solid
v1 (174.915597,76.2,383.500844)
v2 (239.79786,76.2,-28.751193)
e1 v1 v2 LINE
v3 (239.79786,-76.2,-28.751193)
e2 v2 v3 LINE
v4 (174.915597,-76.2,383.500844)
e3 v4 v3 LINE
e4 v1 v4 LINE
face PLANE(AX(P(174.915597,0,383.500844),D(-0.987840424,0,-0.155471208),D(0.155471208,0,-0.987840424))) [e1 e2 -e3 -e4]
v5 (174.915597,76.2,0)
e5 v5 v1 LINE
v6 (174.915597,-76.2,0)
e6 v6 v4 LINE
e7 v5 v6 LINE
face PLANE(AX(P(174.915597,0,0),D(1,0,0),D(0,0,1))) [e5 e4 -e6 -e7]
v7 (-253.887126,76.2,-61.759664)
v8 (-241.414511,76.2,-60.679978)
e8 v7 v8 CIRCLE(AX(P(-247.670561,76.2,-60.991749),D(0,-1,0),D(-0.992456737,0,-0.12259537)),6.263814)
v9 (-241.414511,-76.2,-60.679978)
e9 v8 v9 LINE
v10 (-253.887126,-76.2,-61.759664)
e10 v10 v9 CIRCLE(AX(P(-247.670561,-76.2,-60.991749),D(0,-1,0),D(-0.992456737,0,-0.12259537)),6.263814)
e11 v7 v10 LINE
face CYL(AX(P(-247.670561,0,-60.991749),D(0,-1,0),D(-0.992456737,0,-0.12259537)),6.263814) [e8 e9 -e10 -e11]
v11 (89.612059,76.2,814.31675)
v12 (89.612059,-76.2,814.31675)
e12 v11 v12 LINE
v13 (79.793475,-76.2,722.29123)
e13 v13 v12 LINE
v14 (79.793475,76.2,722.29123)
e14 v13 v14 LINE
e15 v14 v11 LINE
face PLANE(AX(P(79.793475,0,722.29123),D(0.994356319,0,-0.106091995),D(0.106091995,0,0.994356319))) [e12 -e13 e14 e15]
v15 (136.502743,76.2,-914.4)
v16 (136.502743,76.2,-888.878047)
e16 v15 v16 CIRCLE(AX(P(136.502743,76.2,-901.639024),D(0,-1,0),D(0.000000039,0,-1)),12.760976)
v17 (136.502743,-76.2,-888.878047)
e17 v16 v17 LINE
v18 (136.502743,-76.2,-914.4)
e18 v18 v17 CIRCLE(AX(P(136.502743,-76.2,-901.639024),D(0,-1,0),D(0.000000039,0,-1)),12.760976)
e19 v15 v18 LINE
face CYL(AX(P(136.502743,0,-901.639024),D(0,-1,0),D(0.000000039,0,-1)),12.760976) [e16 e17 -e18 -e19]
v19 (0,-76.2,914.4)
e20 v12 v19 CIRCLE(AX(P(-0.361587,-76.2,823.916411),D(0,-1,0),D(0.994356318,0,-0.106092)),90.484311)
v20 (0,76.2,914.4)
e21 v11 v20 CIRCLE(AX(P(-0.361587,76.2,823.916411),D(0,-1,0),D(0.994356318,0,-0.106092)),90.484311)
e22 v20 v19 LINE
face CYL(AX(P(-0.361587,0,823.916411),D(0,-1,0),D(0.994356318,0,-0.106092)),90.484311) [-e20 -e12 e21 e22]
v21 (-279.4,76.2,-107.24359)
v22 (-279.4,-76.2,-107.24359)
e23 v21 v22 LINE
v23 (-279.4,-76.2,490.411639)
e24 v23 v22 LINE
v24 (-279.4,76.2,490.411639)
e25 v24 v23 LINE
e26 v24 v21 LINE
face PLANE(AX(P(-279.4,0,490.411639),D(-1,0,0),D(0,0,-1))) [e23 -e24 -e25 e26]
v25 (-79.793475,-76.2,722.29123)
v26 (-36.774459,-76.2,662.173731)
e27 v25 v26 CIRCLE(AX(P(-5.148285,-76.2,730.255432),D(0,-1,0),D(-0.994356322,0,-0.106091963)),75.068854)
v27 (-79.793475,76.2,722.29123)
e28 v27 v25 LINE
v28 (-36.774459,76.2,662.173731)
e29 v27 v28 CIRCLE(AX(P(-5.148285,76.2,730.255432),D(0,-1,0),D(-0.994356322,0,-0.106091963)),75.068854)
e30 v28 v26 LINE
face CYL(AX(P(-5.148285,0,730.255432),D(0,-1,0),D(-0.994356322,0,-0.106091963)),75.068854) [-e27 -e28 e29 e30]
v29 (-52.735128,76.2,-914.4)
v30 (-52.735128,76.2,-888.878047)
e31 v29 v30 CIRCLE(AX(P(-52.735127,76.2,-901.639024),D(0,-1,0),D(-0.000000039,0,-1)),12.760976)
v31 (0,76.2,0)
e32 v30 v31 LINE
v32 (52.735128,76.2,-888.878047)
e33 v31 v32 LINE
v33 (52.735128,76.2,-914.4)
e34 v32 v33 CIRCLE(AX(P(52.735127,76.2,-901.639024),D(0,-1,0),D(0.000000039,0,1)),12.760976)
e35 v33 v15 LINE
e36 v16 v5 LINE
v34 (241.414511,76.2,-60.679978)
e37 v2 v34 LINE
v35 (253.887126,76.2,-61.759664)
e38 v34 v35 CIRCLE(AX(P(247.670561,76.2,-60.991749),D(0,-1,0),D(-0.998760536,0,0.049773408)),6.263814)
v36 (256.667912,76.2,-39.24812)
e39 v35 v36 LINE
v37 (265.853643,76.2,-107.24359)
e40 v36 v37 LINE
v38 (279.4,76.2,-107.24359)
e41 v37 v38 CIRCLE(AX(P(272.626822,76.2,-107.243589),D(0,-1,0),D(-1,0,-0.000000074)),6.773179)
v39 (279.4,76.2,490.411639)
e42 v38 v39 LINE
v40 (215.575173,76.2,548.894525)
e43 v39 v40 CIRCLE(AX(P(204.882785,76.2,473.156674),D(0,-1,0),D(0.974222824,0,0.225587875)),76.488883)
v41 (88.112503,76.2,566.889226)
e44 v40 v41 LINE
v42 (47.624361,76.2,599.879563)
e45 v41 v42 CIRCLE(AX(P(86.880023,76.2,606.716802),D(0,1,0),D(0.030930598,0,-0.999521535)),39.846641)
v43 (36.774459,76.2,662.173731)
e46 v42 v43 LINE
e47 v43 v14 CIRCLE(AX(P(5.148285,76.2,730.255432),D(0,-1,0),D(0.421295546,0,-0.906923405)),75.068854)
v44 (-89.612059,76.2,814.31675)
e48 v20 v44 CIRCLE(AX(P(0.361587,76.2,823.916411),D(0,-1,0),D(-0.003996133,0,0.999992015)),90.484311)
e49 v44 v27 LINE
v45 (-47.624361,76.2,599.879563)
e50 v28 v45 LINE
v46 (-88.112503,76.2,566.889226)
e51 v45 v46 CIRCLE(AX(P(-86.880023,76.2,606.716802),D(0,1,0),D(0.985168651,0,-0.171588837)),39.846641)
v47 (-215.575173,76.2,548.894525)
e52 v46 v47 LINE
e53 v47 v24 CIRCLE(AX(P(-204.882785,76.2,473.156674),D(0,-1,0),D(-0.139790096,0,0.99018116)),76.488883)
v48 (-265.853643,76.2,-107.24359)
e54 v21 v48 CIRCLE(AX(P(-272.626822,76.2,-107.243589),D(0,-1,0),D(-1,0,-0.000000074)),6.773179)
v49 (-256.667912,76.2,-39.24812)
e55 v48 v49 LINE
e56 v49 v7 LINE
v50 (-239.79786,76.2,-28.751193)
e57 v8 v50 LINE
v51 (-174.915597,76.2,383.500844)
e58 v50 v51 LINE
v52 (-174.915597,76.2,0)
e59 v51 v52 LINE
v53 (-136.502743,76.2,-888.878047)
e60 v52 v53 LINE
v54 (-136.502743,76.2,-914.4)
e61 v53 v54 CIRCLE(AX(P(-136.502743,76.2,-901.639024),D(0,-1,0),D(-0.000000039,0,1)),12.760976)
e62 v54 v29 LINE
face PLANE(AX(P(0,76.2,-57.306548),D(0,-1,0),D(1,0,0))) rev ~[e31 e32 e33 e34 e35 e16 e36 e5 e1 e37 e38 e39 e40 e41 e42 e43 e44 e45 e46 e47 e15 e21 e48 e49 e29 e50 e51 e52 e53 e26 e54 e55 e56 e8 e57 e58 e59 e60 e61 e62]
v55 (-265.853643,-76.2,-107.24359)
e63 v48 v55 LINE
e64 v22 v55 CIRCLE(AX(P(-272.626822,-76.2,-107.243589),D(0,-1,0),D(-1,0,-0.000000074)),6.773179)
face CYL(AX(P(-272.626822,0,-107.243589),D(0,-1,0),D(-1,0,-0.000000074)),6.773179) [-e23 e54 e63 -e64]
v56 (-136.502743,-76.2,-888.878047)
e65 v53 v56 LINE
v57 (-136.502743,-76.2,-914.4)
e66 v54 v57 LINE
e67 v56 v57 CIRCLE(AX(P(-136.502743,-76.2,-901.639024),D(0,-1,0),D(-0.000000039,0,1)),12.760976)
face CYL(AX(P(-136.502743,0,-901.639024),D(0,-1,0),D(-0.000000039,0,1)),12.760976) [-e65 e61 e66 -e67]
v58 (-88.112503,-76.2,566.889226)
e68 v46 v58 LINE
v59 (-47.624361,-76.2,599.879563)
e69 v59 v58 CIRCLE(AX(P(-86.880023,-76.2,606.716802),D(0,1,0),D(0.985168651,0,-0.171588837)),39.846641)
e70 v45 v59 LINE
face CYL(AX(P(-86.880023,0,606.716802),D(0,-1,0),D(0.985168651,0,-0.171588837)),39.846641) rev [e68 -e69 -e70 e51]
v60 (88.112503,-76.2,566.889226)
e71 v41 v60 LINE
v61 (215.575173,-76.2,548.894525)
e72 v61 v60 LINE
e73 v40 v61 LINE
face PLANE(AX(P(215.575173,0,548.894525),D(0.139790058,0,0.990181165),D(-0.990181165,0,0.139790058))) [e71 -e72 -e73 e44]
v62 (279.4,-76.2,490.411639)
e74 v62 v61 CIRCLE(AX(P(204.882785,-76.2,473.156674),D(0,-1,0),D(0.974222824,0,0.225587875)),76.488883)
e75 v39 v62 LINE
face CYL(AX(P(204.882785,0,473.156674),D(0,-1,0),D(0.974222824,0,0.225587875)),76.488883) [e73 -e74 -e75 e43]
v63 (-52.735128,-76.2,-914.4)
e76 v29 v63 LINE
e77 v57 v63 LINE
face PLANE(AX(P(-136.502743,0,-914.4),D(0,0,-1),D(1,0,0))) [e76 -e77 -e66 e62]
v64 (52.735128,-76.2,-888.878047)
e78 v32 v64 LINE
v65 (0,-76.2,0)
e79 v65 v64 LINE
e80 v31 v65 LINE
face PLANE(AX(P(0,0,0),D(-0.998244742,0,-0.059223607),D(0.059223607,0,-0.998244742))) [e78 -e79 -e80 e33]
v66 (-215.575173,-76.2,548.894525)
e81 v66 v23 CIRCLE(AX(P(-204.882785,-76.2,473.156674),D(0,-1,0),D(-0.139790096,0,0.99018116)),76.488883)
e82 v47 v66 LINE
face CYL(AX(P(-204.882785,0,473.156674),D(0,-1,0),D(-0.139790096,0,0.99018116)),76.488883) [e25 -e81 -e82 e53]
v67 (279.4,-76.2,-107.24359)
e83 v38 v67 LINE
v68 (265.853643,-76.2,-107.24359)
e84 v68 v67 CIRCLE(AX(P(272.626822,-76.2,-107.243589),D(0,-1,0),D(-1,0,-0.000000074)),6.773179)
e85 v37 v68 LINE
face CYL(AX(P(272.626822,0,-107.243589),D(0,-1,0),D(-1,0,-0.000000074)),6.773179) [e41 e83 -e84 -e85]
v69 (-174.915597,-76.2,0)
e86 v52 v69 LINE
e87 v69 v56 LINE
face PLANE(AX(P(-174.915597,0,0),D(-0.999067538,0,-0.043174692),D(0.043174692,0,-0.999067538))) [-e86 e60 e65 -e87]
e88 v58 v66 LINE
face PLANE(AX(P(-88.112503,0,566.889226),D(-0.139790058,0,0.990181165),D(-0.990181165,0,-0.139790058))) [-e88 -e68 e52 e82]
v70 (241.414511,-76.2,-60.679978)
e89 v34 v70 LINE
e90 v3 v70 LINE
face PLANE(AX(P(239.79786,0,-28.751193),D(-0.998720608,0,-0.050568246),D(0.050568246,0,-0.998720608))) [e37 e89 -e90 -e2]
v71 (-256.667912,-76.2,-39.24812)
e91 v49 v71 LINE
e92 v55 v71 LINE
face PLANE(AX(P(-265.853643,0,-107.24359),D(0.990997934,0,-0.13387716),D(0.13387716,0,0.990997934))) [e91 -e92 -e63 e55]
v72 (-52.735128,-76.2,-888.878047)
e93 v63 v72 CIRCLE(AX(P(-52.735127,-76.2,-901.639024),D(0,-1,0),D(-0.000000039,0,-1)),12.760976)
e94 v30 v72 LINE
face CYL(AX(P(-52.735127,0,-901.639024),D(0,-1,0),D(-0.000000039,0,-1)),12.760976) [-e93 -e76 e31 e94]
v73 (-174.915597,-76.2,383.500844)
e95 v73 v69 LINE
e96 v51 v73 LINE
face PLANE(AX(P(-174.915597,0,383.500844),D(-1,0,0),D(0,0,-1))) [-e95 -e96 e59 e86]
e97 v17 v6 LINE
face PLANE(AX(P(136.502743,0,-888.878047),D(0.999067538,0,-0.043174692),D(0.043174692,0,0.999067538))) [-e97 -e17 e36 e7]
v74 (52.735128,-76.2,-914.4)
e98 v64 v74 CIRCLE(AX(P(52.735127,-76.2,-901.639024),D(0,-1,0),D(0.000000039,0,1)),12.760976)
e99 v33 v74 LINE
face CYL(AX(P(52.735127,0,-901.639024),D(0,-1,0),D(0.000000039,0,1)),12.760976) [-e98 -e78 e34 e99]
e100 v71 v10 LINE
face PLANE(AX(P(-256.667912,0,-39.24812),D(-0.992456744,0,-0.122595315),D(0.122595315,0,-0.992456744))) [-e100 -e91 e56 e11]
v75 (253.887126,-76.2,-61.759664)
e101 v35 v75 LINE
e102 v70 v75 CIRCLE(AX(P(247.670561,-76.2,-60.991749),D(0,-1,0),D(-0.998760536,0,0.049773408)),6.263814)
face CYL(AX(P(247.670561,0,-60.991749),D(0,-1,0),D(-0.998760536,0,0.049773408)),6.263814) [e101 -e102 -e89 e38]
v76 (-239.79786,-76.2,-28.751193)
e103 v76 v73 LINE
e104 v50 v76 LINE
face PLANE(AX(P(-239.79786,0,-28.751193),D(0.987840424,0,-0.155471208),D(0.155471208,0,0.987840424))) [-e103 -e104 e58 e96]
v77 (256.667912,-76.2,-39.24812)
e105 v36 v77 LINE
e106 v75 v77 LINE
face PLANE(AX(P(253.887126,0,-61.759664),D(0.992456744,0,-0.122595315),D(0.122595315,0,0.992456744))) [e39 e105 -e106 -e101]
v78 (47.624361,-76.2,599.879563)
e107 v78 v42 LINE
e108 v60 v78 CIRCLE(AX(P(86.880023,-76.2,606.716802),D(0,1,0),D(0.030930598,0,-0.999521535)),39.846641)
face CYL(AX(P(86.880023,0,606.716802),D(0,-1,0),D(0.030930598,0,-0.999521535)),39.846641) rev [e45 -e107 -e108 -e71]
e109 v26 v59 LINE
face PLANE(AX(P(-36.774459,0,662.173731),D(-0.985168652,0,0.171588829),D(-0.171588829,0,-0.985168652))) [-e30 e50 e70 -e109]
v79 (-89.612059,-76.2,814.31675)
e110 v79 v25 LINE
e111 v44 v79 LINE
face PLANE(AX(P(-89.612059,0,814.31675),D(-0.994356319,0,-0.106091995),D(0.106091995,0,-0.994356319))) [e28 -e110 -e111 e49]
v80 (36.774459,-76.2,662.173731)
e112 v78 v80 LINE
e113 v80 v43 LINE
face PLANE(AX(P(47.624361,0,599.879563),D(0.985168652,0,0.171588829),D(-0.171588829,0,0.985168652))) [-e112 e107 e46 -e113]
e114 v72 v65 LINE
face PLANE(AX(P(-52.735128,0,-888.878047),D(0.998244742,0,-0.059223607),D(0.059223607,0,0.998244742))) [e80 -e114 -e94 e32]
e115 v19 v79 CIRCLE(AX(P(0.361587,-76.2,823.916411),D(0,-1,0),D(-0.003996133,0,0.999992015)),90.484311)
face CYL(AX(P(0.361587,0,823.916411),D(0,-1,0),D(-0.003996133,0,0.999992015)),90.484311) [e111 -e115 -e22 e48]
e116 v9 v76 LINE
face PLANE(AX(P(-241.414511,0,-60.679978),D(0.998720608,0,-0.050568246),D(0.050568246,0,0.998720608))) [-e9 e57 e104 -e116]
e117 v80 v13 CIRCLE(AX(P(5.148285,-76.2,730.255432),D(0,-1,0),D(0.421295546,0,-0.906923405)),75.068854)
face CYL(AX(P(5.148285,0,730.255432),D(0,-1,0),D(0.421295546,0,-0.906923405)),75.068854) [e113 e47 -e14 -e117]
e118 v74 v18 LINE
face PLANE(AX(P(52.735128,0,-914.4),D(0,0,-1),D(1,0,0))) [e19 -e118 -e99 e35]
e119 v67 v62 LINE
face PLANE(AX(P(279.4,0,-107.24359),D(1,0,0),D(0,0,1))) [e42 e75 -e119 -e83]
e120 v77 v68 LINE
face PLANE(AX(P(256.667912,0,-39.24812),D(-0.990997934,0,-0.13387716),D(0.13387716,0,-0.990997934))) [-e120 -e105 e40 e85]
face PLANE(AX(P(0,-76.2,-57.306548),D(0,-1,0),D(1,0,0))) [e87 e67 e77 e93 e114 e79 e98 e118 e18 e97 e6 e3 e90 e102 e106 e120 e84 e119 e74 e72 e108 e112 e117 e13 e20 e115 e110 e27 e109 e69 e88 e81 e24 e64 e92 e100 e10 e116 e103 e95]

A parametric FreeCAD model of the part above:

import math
import FreeCAD as App
import Part
import Sketcher
from FreeCAD import Vector
Q = App.Units.Quantity

doc = App.newDocument("Part")
body = doc.addObject("PartDesign::Body", "Body")

# Sketch on XZ plane
sketch1 = body.newObject("Sketcher::SketchObject", "Sketch")
sketch1.AttachmentSupport = (doc.getObject("XZ_Plane"), [""])
sketch1.MapMode = "FlatFace"
sketch1.addGeometry([
    Part.LineSegment(Vector(79.793475, 722.29123, 0), Vector(89.612059, 814.31675, 0)),  # 0
    Part.ArcOfCircle(Part.Circle(Vector(-0.361587, 823.916411, 0), Vector(0, 0, 1), 90.484311), math.radians(-6.090085), math.radians(89.771038)),  # 1
    Part.ArcOfCircle(Part.Circle(Vector(0.361587, 823.916411, 0), Vector(0, 0, 1), 90.484311), math.radians(90.228962), math.radians(186.090085)),  # 2
    Part.LineSegment(Vector(-89.612059, 814.31675, 0), Vector(-79.793475, 722.29123, 0)),  # 3
    Part.ArcOfCircle(Part.Circle(Vector(-5.148285, 730.255432, 0), Vector(0, 0, 1), 75.068854), math.radians(-173.909917), math.radians(-114.916408)),  # 4
    Part.LineSegment(Vector(-36.774459, 662.173731, 0), Vector(-47.624361, 599.879563, 0)),  # 5
    Part.ArcOfCircle(Part.Circle(Vector(-86.880023, 606.716802, 0), Vector(0, 0, 1), 39.846641), math.radians(-91.772475), math.radians(-9.88021)),  # 6
    Part.LineSegment(Vector(-88.112503, 566.889226, 0), Vector(-215.575173, 548.894525, 0)),  # 7
    Part.ArcOfCircle(Part.Circle(Vector(-204.882785, 473.156675, 0), Vector(0, 0, 1), 76.488883), math.radians(98.0357), math.radians(166.96255)),  # 8
    Part.LineSegment(Vector(-279.4, 490.411639, 0), Vector(-279.4, -107.24359, 0)),  # 9
    Part.ArcOfCircle(Part.Circle(Vector(-272.626822, -107.243589, 0), Vector(0, 0, 1), 6.773179), math.radians(-179.999996), math.radians(-0.000004)),  # 10
    Part.LineSegment(Vector(-265.853643, -107.24359, 0), Vector(-256.667912, -39.24812, 0)),  # 11
    Part.LineSegment(Vector(-256.667912, -39.24812, 0), Vector(-253.887126, -61.759664, 0)),  # 12
    Part.ArcOfCircle(Part.Circle(Vector(-247.670561, -60.991749, 0), Vector(0, 0, 1), 6.263814), math.radians(-172.958087), math.radians(2.852985)),  # 13
    Part.LineSegment(Vector(-241.414511, -60.679978, 0), Vector(-239.79786, -28.751193, 0)),  # 14
    Part.LineSegment(Vector(-239.79786, -28.751193, 0), Vector(-174.915597, 383.500844, 0)),  # 15
    Part.LineSegment(Vector(-174.915597, 383.500844, 0), Vector(-174.915597, 0, 0)),  # 16
    Part.LineSegment(Vector(-174.915597, 0, 0), Vector(-136.502743, -888.878047, 0)),  # 17
    Part.ArcOfCircle(Part.Circle(Vector(-136.502743, -901.639024, 0), Vector(0, 0, 1), 12.760976), math.radians(90.000002), math.radians(269.999998)),  # 18
    Part.LineSegment(Vector(-136.502743, -914.4, 0), Vector(-52.735128, -914.4, 0)),  # 19
    Part.ArcOfCircle(Part.Circle(Vector(-52.735127, -901.639024, 0), Vector(0, 0, 1), 12.760976), math.radians(-90.000002), math.radians(90.000002)),  # 20
    Part.LineSegment(Vector(-52.735128, -888.878047, 0), Vector(0, 0, 0)),  # 21
    Part.LineSegment(Vector(0, 0, 0), Vector(52.735128, -888.878047, 0)),  # 22
    Part.ArcOfCircle(Part.Circle(Vector(52.735127, -901.639024, 0), Vector(0, 0, 1), 12.760976), math.radians(89.999998), math.radians(270.000002)),  # 23
    Part.LineSegment(Vector(52.735128, -914.4, 0), Vector(136.502743, -914.4, 0)),  # 24
    Part.ArcOfCircle(Part.Circle(Vector(136.502743, -901.639024, 0), Vector(0, 0, 1), 12.760976), math.radians(-89.999998), math.radians(89.999998)),  # 25
    Part.LineSegment(Vector(136.502743, -888.878047, 0), Vector(174.915597, 0, 0)),  # 26
    Part.LineSegment(Vector(174.915597, 0, 0), Vector(174.915597, 383.500844, 0)),  # 27
    Part.LineSegment(Vector(174.915597, 383.500844, 0), Vector(239.79786, -28.751193, 0)),  # 28
    Part.LineSegment(Vector(239.79786, -28.751193, 0), Vector(241.414511, -60.679978, 0)),  # 29
    Part.ArcOfCircle(Part.Circle(Vector(247.670561, -60.991749, 0), Vector(0, 0, 1), 6.263814), math.radians(177.147015), math.radians(352.958087)),  # 30
    Part.LineSegment(Vector(253.887126, -61.759664, 0), Vector(256.667912, -39.24812, 0)),  # 31
    Part.LineSegment(Vector(256.667912, -39.24812, 0), Vector(265.853643, -107.24359, 0)),  # 32
    Part.ArcOfCircle(Part.Circle(Vector(272.626822, -107.243589, 0), Vector(0, 0, 1), 6.773179), math.radians(-179.999996), math.radians(-0.000004)),  # 33
    Part.LineSegment(Vector(279.4, -107.24359, 0), Vector(279.4, 490.411639, 0)),  # 34
    Part.ArcOfCircle(Part.Circle(Vector(204.882785, 473.156675, 0), Vector(0, 0, 1), 76.488883), math.radians(13.03745), math.radians(81.9643)),  # 35
    Part.LineSegment(Vector(215.575173, 548.894525, 0), Vector(88.112503, 566.889226, 0)),  # 36
    Part.ArcOfCircle(Part.Circle(Vector(86.880023, 606.716802, 0), Vector(0, 0, 1), 39.846641), math.radians(-170.11979), math.radians(-88.227525)),  # 37
    Part.LineSegment(Vector(47.624361, 599.879563, 0), Vector(36.774459, 662.173731, 0)),  # 38
    Part.ArcOfCircle(Part.Circle(Vector(5.148285, 730.255432, 0), Vector(0, 0, 1), 75.068854), math.radians(-65.083592), math.radians(-6.090083)),  # 39
], False)
sketch1.addConstraint([
    Sketcher.Constraint("Tangent", 0, 2, 1, 1),
    Sketcher.Constraint("Coincident", 1, 2, 2, 1),
    Sketcher.Constraint("Tangent", 2, 2, 3, 1),
    Sketcher.Constraint("Tangent", 3, 2, 4, 1),
    Sketcher.Constraint("Coincident", 4, 2, 5, 1),
    Sketcher.Constraint("Tangent", 5, 2, 6, 2),
    Sketcher.Constraint("Coincident", 6, 1, 7, 1),
    Sketcher.Constraint("Tangent", 7, 2, 8, 1),
    Sketcher.Constraint("Coincident", 8, 2, 9, 1),
    Sketcher.Constraint("Tangent", 9, 2, 10, 1),
    Sketcher.Constraint("Coincident", 10, 2, 11, 1),
    Sketcher.Constraint("Coincident", 11, 2, 12, 1),
    Sketcher.Constraint("Tangent", 12, 2, 13, 1),
    Sketcher.Constraint("Coincident", 13, 2, 14, 1),
    Sketcher.Constraint("Coincident", 14, 2, 15, 1),
    Sketcher.Constraint("Coincident", 15, 2, 16, 1),
    Sketcher.Constraint("Coincident", 16, 2, 17, 1),
    Sketcher.Constraint("Coincident", 17, 2, 18, 1),
    Sketcher.Constraint("Tangent", 18, 2, 19, 1),
    Sketcher.Constraint("Tangent", 19, 2, 20, 1),
    Sketcher.Constraint("Coincident", 20, 2, 21, 1),
    Sketcher.Constraint("Coincident", 21, 2, 22, 1),
    Sketcher.Constraint("Coincident", 22, 2, 23, 1),
    Sketcher.Constraint("Tangent", 23, 2, 24, 1),
    Sketcher.Constraint("Tangent", 24, 2, 25, 1),
    Sketcher.Constraint("Coincident", 25, 2, 26, 1),
    Sketcher.Constraint("Coincident", 26, 2, 27, 1),
    Sketcher.Constraint("Coincident", 27, 2, 28, 1),
    Sketcher.Constraint("Coincident", 28, 2, 29, 1),
    Sketcher.Constraint("Coincident", 29, 2, 30, 1),
    Sketcher.Constraint("Tangent", 30, 2, 31, 1),
    Sketcher.Constraint("Coincident", 31, 2, 32, 1),
    Sketcher.Constraint("Coincident", 32, 2, 33, 1),
    Sketcher.Constraint("Tangent", 33, 2, 34, 1),
    Sketcher.Constraint("Coincident", 34, 2, 35, 1),
    Sketcher.Constraint("Tangent", 35, 2, 36, 1),
    Sketcher.Constraint("Coincident", 36, 2, 37, 2),
    Sketcher.Constraint("Tangent", 37, 1, 38, 1),
    Sketcher.Constraint("Coincident", 38, 2, 39, 1),
    Sketcher.Constraint("Tangent", 39, 2, 0, 1),
    Sketcher.Constraint("Vertical", 9),
    Sketcher.Constraint("Vertical", 16),
    Sketcher.Constraint("Horizontal", 19),
    Sketcher.Constraint("Horizontal", 24),
    Sketcher.Constraint("Vertical", 27),
    Sketcher.Constraint("Vertical", 34),
    Sketcher.Constraint("Coincident", 21, 2, -1, 1),
    Sketcher.Constraint("Equal", 1, 2),
    Sketcher.Constraint("Equal", 18, 20),
    Sketcher.Constraint("Equal", 20, 23),
    Sketcher.Constraint("Equal", 23, 25),
    Sketcher.Constraint("Equal", 13, 30),
    Sketcher.Constraint("Equal", 10, 33),
    Sketcher.Constraint("Equal", 8, 35),
    Sketcher.Constraint("Equal", 6, 37),
    Sketcher.Constraint("Equal", 4, 39),
    Sketcher.Constraint("Symmetric", 16, 2, 26, 2, -1, 1),
    Sketcher.Constraint("Symmetric", 1, 3, 2, 3, -2),
    Sketcher.Constraint("Symmetric", 20, 3, 23, 3, -2),
    Sketcher.Constraint("Symmetric", 13, 3, 30, 3, -2),
    Sketcher.Constraint("Symmetric", 10, 3, 33, 3, -2),
    Sketcher.Constraint("Symmetric", 8, 3, 35, 3, -2),
    Sketcher.Constraint("Symmetric", 6, 3, 37, 3, -2),
    Sketcher.Constraint("Symmetric", 4, 3, 39, 3, -2),
    Sketcher.Constraint("Symmetric", 14, 2, 28, 2, -2),
    Sketcher.Constraint("Symmetric", 11, 2, 31, 2, -2),
    Sketcher.Constraint("PointOnObject", 16, 2, -1),
    Sketcher.Constraint("Horizontal", 9, 2, 10, 2),
    Sketcher.Constraint("Horizontal", 15, 2, 27, 2),
    Sketcher.Constraint("Horizontal", 13, 2, 29, 2),
    Sketcher.Constraint("Horizontal", 10, 2, 32, 2),
    Sketcher.Constraint("Horizontal", 6, 1, 36, 2),
    Sketcher.Constraint("Horizontal", 5, 2, 37, 1),
    Sketcher.Constraint("Vertical", 18, 3, 17, 2),
    Sketcher.Constraint("Vertical", 19, 2, 20, 2),
    Sketcher.Constraint("Vertical", 23, 3, 22, 2),
    Sketcher.Constraint("Vertical", 24, 2, 25, 2),
    Sketcher.Constraint("Equal", 19, 24),
    Sketcher.Constraint("DistanceY", -1, 1, 1, 2, Q("36 in")),
    Sketcher.Constraint("DistanceX", 8, 2, -1, 1, Q("11 in")),
    Sketcher.Constraint("DistanceY", 18, 2, -1, 1, Q("36 in")),
    Sketcher.Constraint("Radius", 1, Q("90.484311 mm")),
    Sketcher.Constraint("Radius", 6, Q("39.846641 mm")),
    Sketcher.Constraint("Radius", 10, Q("6.773179 mm")),
    Sketcher.Constraint("Radius", 4, Q("75.068854 mm")),
    Sketcher.Constraint("Radius", 8, Q("76.488883 mm")),
    Sketcher.Constraint("Radius", 13, Q("6.263814 mm")),
    Sketcher.Constraint("Radius", 18, Q("12.760976 mm")),
    Sketcher.Constraint("Distance", 21, Q("890.441001 mm")),
    Sketcher.Constraint("DistanceY", 9, 2, 9, 1, Q("597.655229 mm")),
    Sketcher.Constraint("DistanceY", -1, 1, 6, 3, Q("606.716802 mm")),
    Sketcher.Constraint("DistanceX", 8, 3, 4, 3, Q("199.7345 mm")),
    Sketcher.Constraint("DistanceX", 10, 3, 6, 3, Q("185.746799 mm")),
    Sketcher.Constraint("DistanceY", 10, 3, 1, 3, Q("931.160001 mm")),
    Sketcher.Constraint("DistanceY", 18, 3, 8, 3, Q("1374.795698 mm")),
    Sketcher.Constraint("DistanceY", 4, 2, 3, 2, Q("60.117499 mm")),
    Sketcher.Constraint("DistanceY", 4, 2, 4, 3, Q("68.081701 mm")),
    Sketcher.Constraint("DistanceY", 7, 2, 6, 1, Q("17.994701 mm")),
    Sketcher.Constraint("DistanceX", 11, 2, 13, 2, Q("15.253401 mm")),
    Sketcher.Constraint("DistanceX", 13, 3, 14, 2, Q("7.872701 mm")),
    Sketcher.Constraint("DistanceX", 10, 2, 17, 2, Q("129.3509 mm")),
    Sketcher.Constraint("DistanceX", 6, 1, 27, 2, Q("263.0281 mm")),
    Sketcher.Constraint("Distance", 0, Q("92.54783 mm")),
    Sketcher.Constraint("Distance", 11, Q("68.61313 mm")),
    Sketcher.Constraint("Distance", 15, Q("417.326551 mm")),
    Sketcher.Constraint("DistanceY", 16, 2, 16, 1, Q("383.500844 mm")),
    Sketcher.Constraint("DistanceX", 13, 3, -1, 1, Q("247.670561 mm")),
    Sketcher.Constraint("DistanceY", 13, 3, -1, 1, Q("60.991749 mm")),
    Sketcher.Constraint("DistanceX", 11, 2, -1, 1, Q("256.667912 mm")),
])
pad1 = body.newObject("PartDesign::Pad", "Pad")
pad1.Profile = sketch1
pad1.Length = Q("6 in")
pad1.Midplane = True

doc.recompute()
